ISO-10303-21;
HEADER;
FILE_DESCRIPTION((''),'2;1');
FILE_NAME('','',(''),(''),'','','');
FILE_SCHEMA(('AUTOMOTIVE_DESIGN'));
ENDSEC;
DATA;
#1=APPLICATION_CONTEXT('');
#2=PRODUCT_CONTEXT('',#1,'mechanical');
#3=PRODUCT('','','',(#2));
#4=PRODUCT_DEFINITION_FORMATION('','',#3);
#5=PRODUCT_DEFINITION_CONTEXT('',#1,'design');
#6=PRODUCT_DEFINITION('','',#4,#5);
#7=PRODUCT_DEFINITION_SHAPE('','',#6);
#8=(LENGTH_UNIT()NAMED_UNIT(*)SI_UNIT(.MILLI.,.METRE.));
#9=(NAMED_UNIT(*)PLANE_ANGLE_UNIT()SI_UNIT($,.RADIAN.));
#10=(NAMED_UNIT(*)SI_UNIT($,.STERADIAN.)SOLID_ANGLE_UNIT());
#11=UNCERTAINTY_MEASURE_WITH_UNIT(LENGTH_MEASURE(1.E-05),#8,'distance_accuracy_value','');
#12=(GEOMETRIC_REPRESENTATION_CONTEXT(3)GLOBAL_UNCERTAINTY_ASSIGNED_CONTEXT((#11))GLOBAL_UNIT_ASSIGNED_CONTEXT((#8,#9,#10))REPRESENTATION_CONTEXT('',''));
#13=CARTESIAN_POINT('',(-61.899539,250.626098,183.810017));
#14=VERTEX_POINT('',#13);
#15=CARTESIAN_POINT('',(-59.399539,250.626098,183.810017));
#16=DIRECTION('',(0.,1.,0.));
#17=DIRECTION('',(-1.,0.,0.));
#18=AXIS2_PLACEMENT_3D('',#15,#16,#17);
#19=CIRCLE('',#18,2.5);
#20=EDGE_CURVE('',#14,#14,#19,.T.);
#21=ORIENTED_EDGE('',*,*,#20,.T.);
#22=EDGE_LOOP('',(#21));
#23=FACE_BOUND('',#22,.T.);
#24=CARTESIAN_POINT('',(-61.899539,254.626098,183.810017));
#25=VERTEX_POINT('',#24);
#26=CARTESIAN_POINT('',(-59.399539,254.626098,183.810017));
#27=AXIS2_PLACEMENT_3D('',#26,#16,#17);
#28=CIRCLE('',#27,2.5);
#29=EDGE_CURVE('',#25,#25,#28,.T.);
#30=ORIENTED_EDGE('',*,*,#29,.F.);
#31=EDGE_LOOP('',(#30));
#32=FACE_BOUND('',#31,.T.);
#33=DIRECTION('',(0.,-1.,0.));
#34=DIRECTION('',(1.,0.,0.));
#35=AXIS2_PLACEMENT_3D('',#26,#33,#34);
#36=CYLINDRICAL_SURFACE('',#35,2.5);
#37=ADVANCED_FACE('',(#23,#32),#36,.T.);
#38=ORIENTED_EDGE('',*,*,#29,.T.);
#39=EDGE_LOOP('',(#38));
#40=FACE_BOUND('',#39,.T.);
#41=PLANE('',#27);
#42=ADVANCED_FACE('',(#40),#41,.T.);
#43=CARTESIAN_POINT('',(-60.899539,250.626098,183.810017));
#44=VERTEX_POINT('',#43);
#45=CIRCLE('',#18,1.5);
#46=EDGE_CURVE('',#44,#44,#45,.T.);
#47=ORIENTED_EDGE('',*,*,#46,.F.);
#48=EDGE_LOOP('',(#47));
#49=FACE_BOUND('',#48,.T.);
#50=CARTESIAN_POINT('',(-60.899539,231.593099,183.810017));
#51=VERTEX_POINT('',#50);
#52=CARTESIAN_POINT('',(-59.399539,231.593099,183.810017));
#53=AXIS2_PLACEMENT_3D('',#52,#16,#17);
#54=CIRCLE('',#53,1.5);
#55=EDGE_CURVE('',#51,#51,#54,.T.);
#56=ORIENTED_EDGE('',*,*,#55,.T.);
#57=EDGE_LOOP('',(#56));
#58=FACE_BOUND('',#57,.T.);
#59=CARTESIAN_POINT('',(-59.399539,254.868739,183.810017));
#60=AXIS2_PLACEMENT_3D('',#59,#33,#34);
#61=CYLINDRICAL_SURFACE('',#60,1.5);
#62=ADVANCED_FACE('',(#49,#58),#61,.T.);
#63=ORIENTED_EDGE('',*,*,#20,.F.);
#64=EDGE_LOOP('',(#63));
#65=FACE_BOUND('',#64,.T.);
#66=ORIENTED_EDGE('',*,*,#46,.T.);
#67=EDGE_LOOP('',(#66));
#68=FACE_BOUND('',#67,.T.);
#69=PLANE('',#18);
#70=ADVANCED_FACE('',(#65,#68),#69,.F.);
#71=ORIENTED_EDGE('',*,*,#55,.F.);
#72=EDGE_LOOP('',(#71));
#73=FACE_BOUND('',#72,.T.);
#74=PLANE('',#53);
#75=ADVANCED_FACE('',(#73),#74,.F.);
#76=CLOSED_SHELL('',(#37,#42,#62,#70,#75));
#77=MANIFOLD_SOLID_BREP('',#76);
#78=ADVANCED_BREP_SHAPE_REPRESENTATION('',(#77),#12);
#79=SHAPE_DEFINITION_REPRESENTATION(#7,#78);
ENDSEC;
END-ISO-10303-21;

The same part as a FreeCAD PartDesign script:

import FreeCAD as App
import Part
import Sketcher

V = App.Vector

doc = App.newDocument("Part")
params = doc.addObject("Spreadsheet::Sheet", "Params")
for row, (alias, value) in enumerate([
    ("sketch1_diameter", "3 mm"),
    ("pad1_length", "12.032999 mm"),
    ("pad1_length2", "7 mm"),
    ("sketch2_diameter", "5 mm"),
    ("pad2_length", "4 mm"),
], start=1):
    params.set(f"A{row}", alias)
    params.set(f"B{row}", "=" + value)
    params.setAlias(f"B{row}", alias)

body = doc.addObject("PartDesign::Body", "Body")

sketch1 = doc.addObject("Sketcher::SketchObject", "Sketch")
body.addObject(sketch1)
sketch1.AttachmentSupport = (doc.XZ_Plane, [""])
sketch1.MapMode = "FlatFace"
sketch1.AttachmentOffset = App.Placement(V(0, 0, -238.593099), App.Rotation())
sketch1.addGeometry(Part.Circle(V(-59.399539, 183.810017, 0), V(0, 0, 1), 1.5), False)
sketch1.addConstraint(Sketcher.Constraint("Diameter", 0, 3.0))
sketch1.addConstraint(Sketcher.Constraint("DistanceX", 0, 3, -1, 1, 59.399539))
sketch1.addConstraint(Sketcher.Constraint("DistanceY", -1, 1, 0, 3, 183.810017))
sketch1.setExpression("Constraints[0]", "Params.sketch1_diameter")
pad1 = doc.addObject("PartDesign::Pad", "Pad")
body.addObject(pad1)
pad1.Profile = sketch1
pad1.Type = "TwoLengths"
pad1.setExpression("Length", "Params.pad1_length")
pad1.setExpression("Length2", "Params.pad1_length2")
pad1.Reversed = True

sketch2 = doc.addObject("Sketcher::SketchObject", "Sketch001")
body.addObject(sketch2)
sketch2.AttachmentSupport = (doc.XZ_Plane, [""])
sketch2.MapMode = "FlatFace"
sketch2.AttachmentOffset = App.Placement(V(0, 0, -250.626098), App.Rotation())
sketch2.addGeometry(Part.Circle(V(-59.399539, 183.810017, 0), V(0, 0, 1), 2.5), False)
sketch2.addConstraint(Sketcher.Constraint("Diameter", 0, 5.0))
sketch2.addConstraint(Sketcher.Constraint("DistanceX", 0, 3, -1, 1, 59.399539))
sketch2.addConstraint(Sketcher.Constraint("DistanceY", -1, 1, 0, 3, 183.810017))
sketch2.setExpression("Constraints[0]", "Params.sketch2_diameter")
pad2 = doc.addObject("PartDesign::Pad", "Pad001")
body.addObject(pad2)
pad2.Profile = sketch2
pad2.setExpression("Length", "Params.pad2_length")
pad2.Reversed = True

doc.recompute()
